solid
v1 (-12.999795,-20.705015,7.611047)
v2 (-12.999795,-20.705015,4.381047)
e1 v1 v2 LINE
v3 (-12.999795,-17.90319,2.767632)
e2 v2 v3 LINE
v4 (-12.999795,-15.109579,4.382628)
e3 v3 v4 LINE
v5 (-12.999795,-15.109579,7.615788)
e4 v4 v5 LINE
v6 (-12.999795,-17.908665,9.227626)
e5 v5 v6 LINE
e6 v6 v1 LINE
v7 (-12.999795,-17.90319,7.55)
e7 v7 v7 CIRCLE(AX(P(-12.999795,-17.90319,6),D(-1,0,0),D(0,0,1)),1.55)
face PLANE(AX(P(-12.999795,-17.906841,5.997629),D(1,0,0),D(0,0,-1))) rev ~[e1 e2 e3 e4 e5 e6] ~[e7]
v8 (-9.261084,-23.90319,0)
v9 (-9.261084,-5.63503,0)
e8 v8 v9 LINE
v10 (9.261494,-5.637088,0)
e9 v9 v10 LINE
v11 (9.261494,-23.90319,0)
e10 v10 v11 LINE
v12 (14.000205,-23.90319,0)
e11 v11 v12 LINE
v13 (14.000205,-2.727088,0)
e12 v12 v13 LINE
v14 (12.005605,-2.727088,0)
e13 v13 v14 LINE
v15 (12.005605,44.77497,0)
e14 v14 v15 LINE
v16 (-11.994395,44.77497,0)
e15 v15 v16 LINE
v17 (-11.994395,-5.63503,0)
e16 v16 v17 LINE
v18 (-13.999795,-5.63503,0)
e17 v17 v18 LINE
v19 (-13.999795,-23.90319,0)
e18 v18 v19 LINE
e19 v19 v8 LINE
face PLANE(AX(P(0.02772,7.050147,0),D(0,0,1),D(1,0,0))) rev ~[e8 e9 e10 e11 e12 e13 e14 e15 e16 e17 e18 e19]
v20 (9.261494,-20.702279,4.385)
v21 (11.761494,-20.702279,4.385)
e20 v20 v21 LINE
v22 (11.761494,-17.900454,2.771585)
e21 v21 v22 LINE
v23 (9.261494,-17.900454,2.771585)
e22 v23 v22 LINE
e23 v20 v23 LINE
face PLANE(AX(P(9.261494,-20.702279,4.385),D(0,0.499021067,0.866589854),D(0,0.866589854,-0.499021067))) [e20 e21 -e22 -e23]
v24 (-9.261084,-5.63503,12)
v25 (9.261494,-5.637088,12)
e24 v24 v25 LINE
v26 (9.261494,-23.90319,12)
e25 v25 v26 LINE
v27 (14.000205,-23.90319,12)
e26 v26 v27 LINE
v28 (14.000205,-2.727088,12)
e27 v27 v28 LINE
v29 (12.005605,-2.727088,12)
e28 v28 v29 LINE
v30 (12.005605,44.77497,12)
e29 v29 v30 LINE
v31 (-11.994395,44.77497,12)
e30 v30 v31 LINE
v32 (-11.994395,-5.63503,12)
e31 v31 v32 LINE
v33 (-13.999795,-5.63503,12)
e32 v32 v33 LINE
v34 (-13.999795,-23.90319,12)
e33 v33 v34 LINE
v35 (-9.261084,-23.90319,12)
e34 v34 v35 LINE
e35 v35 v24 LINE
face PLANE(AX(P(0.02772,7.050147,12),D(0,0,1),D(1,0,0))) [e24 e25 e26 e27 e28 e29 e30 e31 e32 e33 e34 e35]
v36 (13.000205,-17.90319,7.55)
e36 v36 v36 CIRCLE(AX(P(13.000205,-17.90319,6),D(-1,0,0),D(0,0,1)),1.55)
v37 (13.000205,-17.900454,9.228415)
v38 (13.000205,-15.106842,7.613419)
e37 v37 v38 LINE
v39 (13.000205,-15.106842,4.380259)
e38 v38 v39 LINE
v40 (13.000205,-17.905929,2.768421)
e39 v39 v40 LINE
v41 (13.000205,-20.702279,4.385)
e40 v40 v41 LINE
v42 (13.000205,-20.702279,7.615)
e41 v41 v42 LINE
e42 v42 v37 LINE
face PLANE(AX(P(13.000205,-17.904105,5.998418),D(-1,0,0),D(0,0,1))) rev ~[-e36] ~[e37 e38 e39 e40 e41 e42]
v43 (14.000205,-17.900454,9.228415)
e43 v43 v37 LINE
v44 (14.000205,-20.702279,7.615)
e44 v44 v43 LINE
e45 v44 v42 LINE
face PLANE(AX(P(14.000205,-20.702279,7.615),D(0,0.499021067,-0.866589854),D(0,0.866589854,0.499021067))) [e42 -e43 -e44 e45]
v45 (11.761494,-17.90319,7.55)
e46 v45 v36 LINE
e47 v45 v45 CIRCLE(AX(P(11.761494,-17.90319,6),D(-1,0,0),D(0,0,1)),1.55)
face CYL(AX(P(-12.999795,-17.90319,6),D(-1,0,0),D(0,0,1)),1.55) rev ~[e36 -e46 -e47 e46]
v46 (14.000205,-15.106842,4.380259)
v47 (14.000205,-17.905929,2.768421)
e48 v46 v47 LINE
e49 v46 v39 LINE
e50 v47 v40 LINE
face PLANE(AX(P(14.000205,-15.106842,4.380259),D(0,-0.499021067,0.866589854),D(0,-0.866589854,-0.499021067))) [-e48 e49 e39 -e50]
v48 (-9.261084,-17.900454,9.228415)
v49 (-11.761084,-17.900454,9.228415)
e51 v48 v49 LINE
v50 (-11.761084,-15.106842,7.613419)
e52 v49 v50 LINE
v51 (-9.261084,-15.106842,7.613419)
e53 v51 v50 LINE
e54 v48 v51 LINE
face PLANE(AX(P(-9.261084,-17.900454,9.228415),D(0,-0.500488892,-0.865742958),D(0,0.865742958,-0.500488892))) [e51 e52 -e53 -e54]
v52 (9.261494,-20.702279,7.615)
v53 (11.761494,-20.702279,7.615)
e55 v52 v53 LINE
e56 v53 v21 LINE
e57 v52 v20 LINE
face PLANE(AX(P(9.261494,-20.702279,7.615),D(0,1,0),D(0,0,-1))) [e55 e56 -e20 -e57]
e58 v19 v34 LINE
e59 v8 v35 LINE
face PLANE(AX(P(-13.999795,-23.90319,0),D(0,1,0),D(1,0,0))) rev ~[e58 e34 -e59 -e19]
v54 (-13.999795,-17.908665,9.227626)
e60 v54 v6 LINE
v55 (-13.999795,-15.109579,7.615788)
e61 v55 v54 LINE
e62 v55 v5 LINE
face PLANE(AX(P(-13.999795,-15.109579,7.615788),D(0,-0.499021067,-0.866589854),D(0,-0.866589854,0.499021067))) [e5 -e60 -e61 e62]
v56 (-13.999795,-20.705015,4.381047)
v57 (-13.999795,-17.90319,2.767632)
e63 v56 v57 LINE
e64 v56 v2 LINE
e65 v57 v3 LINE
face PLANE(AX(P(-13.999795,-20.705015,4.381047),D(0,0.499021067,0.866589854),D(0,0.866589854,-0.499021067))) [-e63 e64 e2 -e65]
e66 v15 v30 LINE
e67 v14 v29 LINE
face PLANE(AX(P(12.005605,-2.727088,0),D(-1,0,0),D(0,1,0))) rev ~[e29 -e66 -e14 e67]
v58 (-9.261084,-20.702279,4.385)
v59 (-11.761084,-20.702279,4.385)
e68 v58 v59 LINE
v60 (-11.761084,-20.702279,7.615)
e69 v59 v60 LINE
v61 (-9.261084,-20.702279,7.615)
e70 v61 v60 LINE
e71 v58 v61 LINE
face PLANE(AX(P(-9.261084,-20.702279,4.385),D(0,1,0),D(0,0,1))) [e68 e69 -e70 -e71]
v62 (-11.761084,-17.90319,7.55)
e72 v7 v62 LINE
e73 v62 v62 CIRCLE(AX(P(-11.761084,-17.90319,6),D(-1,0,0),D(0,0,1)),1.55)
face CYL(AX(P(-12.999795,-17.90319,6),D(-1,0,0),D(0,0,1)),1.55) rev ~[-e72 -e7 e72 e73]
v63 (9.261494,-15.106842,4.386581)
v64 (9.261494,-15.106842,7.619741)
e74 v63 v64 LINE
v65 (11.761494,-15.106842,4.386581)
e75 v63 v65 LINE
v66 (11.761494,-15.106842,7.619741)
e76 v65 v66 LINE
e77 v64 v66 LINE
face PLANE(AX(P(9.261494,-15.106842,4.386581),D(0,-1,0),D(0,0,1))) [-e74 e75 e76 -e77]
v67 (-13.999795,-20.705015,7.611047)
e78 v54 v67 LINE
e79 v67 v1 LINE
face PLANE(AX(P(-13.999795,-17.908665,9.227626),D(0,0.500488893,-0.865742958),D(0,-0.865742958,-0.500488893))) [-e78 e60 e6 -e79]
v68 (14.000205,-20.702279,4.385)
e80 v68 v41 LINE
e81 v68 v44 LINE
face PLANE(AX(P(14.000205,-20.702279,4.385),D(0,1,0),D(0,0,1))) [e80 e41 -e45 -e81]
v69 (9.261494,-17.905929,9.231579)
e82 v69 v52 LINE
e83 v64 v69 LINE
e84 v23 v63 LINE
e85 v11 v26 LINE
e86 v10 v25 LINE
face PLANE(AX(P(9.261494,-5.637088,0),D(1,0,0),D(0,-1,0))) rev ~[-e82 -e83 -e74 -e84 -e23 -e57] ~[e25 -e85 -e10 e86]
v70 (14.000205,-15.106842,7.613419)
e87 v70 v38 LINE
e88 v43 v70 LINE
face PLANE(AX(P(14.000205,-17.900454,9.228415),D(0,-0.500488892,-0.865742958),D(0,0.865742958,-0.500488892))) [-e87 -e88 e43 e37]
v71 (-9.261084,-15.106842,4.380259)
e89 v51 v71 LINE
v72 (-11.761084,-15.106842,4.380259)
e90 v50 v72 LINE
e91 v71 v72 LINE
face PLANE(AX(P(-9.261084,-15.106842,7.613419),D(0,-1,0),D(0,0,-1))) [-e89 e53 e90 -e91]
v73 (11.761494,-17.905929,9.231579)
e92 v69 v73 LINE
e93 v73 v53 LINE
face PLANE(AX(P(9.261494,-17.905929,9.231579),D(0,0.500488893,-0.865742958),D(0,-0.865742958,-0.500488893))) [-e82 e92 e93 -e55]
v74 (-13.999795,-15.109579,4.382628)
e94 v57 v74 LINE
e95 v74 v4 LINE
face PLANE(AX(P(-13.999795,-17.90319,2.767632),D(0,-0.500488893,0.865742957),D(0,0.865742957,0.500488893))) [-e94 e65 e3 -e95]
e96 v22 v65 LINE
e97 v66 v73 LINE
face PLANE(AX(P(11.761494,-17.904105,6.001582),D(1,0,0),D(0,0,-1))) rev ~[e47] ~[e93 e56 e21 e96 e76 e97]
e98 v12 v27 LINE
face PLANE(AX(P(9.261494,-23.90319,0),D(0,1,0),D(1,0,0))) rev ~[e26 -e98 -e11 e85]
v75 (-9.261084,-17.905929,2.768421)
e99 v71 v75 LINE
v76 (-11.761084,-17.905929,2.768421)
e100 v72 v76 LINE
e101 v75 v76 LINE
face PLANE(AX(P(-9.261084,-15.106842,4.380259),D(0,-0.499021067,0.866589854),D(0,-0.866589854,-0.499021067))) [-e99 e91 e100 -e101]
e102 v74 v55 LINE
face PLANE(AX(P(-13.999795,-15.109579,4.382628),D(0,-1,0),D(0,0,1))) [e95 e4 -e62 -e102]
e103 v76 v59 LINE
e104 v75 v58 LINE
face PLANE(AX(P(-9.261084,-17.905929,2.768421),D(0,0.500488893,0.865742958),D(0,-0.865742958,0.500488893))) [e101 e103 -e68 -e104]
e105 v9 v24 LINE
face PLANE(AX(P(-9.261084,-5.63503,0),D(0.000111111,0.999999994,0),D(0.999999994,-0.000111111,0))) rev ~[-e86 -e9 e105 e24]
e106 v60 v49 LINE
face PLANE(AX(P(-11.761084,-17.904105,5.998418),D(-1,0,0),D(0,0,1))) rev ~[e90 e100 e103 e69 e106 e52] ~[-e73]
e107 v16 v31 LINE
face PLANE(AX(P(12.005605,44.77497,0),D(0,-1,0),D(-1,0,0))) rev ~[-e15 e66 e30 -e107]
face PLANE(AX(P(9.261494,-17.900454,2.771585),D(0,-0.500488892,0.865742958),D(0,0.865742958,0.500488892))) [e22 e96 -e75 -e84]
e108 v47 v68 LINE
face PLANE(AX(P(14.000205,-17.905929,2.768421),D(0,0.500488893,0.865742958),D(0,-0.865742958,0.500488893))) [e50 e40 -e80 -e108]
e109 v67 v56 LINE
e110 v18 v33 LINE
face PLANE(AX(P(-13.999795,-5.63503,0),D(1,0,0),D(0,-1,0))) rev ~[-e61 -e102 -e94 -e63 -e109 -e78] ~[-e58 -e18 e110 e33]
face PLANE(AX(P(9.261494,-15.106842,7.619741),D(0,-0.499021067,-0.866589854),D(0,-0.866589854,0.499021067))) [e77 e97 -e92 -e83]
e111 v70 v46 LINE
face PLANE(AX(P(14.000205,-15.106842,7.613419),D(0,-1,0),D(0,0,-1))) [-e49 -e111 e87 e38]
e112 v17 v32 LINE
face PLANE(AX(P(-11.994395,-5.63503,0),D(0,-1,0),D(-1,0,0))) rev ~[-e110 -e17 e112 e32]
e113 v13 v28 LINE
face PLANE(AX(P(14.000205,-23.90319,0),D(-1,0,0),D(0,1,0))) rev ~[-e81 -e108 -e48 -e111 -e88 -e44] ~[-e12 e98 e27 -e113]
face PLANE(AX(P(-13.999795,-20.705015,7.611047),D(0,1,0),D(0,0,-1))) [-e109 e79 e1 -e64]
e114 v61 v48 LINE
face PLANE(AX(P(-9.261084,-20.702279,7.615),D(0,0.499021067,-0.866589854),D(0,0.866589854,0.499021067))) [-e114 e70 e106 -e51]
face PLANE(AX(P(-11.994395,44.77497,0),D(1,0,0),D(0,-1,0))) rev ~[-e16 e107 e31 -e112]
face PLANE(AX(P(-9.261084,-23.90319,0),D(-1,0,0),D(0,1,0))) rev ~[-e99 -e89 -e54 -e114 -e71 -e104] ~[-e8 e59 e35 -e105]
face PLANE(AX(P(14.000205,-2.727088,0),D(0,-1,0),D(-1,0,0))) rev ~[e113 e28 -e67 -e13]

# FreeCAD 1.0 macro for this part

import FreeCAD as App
import Part
import Sketcher

V = App.Vector
Q = App.Units.Quantity

doc = App.newDocument("Part")
params = doc.addObject("Spreadsheet::Sheet", "Params")
for row, (alias, value) in enumerate([
    ("sketch1_width", "24 mm"),
    ("sketch1_height", "50.41 mm"),
    ("pad1_length", "12 mm"),
    ("sketch2_height", "3.23 mm"),
    ("sketch2_length", "3.23 mm"),
    ("pocket1_length", "1 mm"),
    ("sketch3_height", "3.23 mm"),
    ("sketch3_length", "3.23 mm"),
    ("pocket2_length", "1 mm"),
    ("sketch4_height", "3.23 mm"),
    ("sketch4_length", "3.23 mm"),
    ("pocket3_length", "2.5 mm"),
    ("sketch5_height", "3.23 mm"),
    ("sketch5_length", "3.23 mm"),
    ("pocket4_length", "2.5 mm"),
    ("sketch6_diameter", "3.1 mm"),
], start=1):
    params.set(f"A{row}", alias)
    params.set(f"B{row}", "=" + value)
    params.setAlias(f"B{row}", alias)

body = doc.addObject("PartDesign::Body", "Body")

sketch1 = body.newObject("Sketcher::SketchObject", "Sketch")
sketch1.AttachmentSupport = (doc.getObject("XY_Plane"), [""])
sketch1.MapMode = "FlatFace"
sketch1.addGeometry([
    Part.LineSegment(V(-12, 44.8, 0), V(-12, -5.6, 0)),
    Part.LineSegment(V(-12, -5.6, 0), V(-14, -5.6, 0)),
    Part.LineSegment(V(-14, -5.6, 0), V(-14, -23.9, 0)),
    Part.LineSegment(V(-14, -23.9, 0), V(-9.3, -23.9, 0)),
    Part.LineSegment(V(-9.3, -23.9, 0), V(-9.3, -5.6, 0)),
    Part.LineSegment(V(-9.3, -5.6, 0), V(9.3, -5.6, 0)),
    Part.LineSegment(V(9.3, -5.6, 0), V(9.3, -23.9, 0)),
    Part.LineSegment(V(9.3, -23.9, 0), V(14, -23.9, 0)),
    Part.LineSegment(V(14, -23.9, 0), V(14, -2.7, 0)),
    Part.LineSegment(V(14, -2.7, 0), V(12, -2.7, 0)),
    Part.LineSegment(V(12, -2.7, 0), V(12, 44.8, 0)),
    Part.LineSegment(V(12, 44.8, 0), V(-12, 44.8, 0)),
], False)
sketch1.addConstraint([
    Sketcher.Constraint("Coincident", 0, 2, 1, 1),
    Sketcher.Constraint("Coincident", 1, 2, 2, 1),
    Sketcher.Constraint("Coincident", 2, 2, 3, 1),
    Sketcher.Constraint("Coincident", 3, 2, 4, 1),
    Sketcher.Constraint("Coincident", 4, 2, 5, 1),
    Sketcher.Constraint("Coincident", 5, 2, 6, 1),
    Sketcher.Constraint("Coincident", 6, 2, 7, 1),
    Sketcher.Constraint("Coincident", 7, 2, 8, 1),
    Sketcher.Constraint("Coincident", 8, 2, 9, 1),
    Sketcher.Constraint("Coincident", 9, 2, 10, 1),
    Sketcher.Constraint("Coincident", 10, 2, 11, 1),
    Sketcher.Constraint("Coincident", 11, 2, 0, 1),
    Sketcher.Constraint("Vertical", 0),
    Sketcher.Constraint("Horizontal", 1),
    Sketcher.Constraint("Vertical", 2),
    Sketcher.Constraint("Horizontal", 3),
    Sketcher.Constraint("Vertical", 4),
    Sketcher.Constraint("Vertical", 6),
    Sketcher.Constraint("Horizontal", 7),
    Sketcher.Constraint("Vertical", 8),
    Sketcher.Constraint("Horizontal", 9),
    Sketcher.Constraint("Vertical", 10),
    Sketcher.Constraint("Horizontal", 11),
    Sketcher.Constraint("Horizontal", 1, 2, 4, 2),
    Sketcher.Constraint("Horizontal", 3, 2, 6, 2),
    Sketcher.Constraint("Equal", 3, 7),
    Sketcher.Constraint("DistanceX", 11, 2, 11, 1, Q("24 mm")),
    Sketcher.Constraint("DistanceX", 2, 2, 7, 2, Q("28 mm")),
    Sketcher.Constraint("DistanceY", 0, 2, 0, 1, Q("50.41 mm")),
    Sketcher.Constraint("DistanceY", 5, 2, 8, 2, Q("2.91 mm")),
    Sketcher.Constraint("DistanceX", 1, 2, 1, 1, Q("2.0054 mm")),
    Sketcher.Constraint("DistanceY", 6, 2, 6, 1, Q("18.266102 mm")),
    Sketcher.Constraint("DistanceX", 3, 1, 3, 2, Q("4.738711 mm")),
    Sketcher.Constraint("DistanceY", 2, 2, 2, 1, Q("18.26816 mm")),
    Sketcher.Constraint("DistanceY", 0, 2, -1, 1, Q("5.63503 mm")),
    Sketcher.Constraint("DistanceX", 0, 2, -1, 1, Q("11.994395 mm")),
])
sketch1.setExpression("Constraints[26]", "Params.sketch1_width")
sketch1.setExpression("Constraints[28]", "Params.sketch1_height")
pad1 = body.newObject("PartDesign::Pad", "Pad")
pad1.Profile = sketch1
pad1.setExpression("Length", "Params.pad1_length")

sketch2 = body.newObject("Sketcher::SketchObject", "Sketch001")
sketch2.AttachmentSupport = (doc.getObject("YZ_Plane"), [""])
sketch2.MapMode = "FlatFace"
sketch2.AttachmentOffset = App.Placement(V(0, 0, 14.000205), App.Rotation())
sketch2.addGeometry([
    Part.LineSegment(V(-20.7, 7.6, 0), V(-20.7, 4.4, 0)),
    Part.LineSegment(V(-20.7, 4.4, 0), V(-17.9, 2.8, 0)),
    Part.LineSegment(V(-17.9, 2.8, 0), V(-15.1, 4.4, 0)),
    Part.LineSegment(V(-15.1, 4.4, 0), V(-15.1, 7.6, 0)),
    Part.LineSegment(V(-15.1, 7.6, 0), V(-17.9, 9.2, 0)),
    Part.LineSegment(V(-17.9, 9.2, 0), V(-20.7, 7.6, 0)),
], False)
sketch2.addConstraint([
    Sketcher.Constraint("Coincident", 0, 2, 1, 1),
    Sketcher.Constraint("Coincident", 1, 2, 2, 1),
    Sketcher.Constraint("Coincident", 2, 2, 3, 1),
    Sketcher.Constraint("Coincident", 3, 2, 4, 1),
    Sketcher.Constraint("Coincident", 4, 2, 5, 1),
    Sketcher.Constraint("Coincident", 5, 2, 0, 1),
    Sketcher.Constraint("Vertical", 0),
    Sketcher.Constraint("Vertical", 3),
    Sketcher.Constraint("Parallel", 1, 4),
    Sketcher.Constraint("Parallel", 2, 5),
    Sketcher.Constraint("Equal", 1, 2),
    Sketcher.Constraint("DistanceY", 0, 2, 0, 1, Q("3.23 mm")),
    Sketcher.Constraint("Distance", 1, Q("3.23 mm")),
    Sketcher.Constraint("DistanceY", -1, 1, 0, 2, Q("4.385 mm")),
    Sketcher.Constraint("DistanceY", 1, 2, 3, 2, Q("4.844998 mm")),
    Sketcher.Constraint("DistanceY", 3, 1, 3, 2, Q("3.23316 mm")),
    Sketcher.Constraint("DistanceX", 0, 2, -1, 1, Q("20.702279 mm")),
    Sketcher.Constraint("DistanceX", 1, 2, -1, 1, Q("17.905929 mm")),
])
sketch2.setExpression("Constraints[11]", "Params.sketch2_height")
sketch2.setExpression("Constraints[12]", "Params.sketch2_length")
pocket1 = body.newObject("PartDesign::Pocket", "Pocket")
pocket1.Profile = sketch2
pocket1.setExpression("Length", "Params.pocket1_length")

sketch3 = body.newObject("Sketcher::SketchObject", "Sketch002")
sketch3.AttachmentSupport = (doc.getObject("YZ_Plane"), [""])
sketch3.MapMode = "FlatFace"
sketch3.AttachmentOffset = App.Placement(V(0, 0, -13.999795), App.Rotation())
sketch3.addGeometry([
    Part.LineSegment(V(-20.7, 4.4, 0), V(-20.7, 7.6, 0)),
    Part.LineSegment(V(-20.7, 7.6, 0), V(-17.9, 9.2, 0)),
    Part.LineSegment(V(-17.9, 9.2, 0), V(-15.1, 7.6, 0)),
    Part.LineSegment(V(-15.1, 7.6, 0), V(-15.1, 4.4, 0)),
    Part.LineSegment(V(-15.1, 4.4, 0), V(-17.9, 2.8, 0)),
    Part.LineSegment(V(-17.9, 2.8, 0), V(-20.7, 4.4, 0)),
], False)
sketch3.addConstraint([
    Sketcher.Constraint("Coincident", 0, 2, 1, 1),
    Sketcher.Constraint("Coincident", 1, 2, 2, 1),
    Sketcher.Constraint("Coincident", 2, 2, 3, 1),
    Sketcher.Constraint("Coincident", 3, 2, 4, 1),
    Sketcher.Constraint("Coincident", 4, 2, 5, 1),
    Sketcher.Constraint("Coincident", 5, 2, 0, 1),
    Sketcher.Constraint("Vertical", 0),
    Sketcher.Constraint("Vertical", 3),
    Sketcher.Constraint("Parallel", 1, 4),
    Sketcher.Constraint("Parallel", 2, 5),
    Sketcher.Constraint("Equal", 1, 2),
    Sketcher.Constraint("DistanceY", 0, 1, 0, 2, Q("3.23 mm")),
    Sketcher.Constraint("Distance", 1, Q("3.23 mm")),
    Sketcher.Constraint("DistanceY", 3, 2, 1, 2, Q("4.844998 mm")),
    Sketcher.Constraint("DistanceY", 3, 2, 3, 1, Q("3.23316 mm")),
    Sketcher.Constraint("DistanceX", 2, 2, -1, 1, Q("15.109579 mm")),
    Sketcher.Constraint("DistanceX", 4, 2, -1, 1, Q("17.90319 mm")),
    Sketcher.Constraint("DistanceY", -1, 1, 4, 2, Q("2.767632 mm")),
])
sketch3.setExpression("Constraints[11]", "Params.sketch3_height")
sketch3.setExpression("Constraints[12]", "Params.sketch3_length")
pocket2 = body.newObject("PartDesign::Pocket", "Pocket001")
pocket2.Profile = sketch3
pocket2.setExpression("Length", "Params.pocket2_length")
pocket2.Reversed = True

sketch4 = body.newObject("Sketcher::SketchObject", "Sketch003")
sketch4.AttachmentSupport = (doc.getObject("YZ_Plane"), [""])
sketch4.MapMode = "FlatFace"
sketch4.AttachmentOffset = App.Placement(V(0, 0, 9.261494), App.Rotation())
sketch4.addGeometry([
    Part.LineSegment(V(-20.7, 4.4, 0), V(-20.7, 7.6, 0)),
    Part.LineSegment(V(-20.7, 7.6, 0), V(-17.9, 9.2, 0)),
    Part.LineSegment(V(-17.9, 9.2, 0), V(-15.1, 7.6, 0)),
    Part.LineSegment(V(-15.1, 7.6, 0), V(-15.1, 4.4, 0)),
    Part.LineSegment(V(-15.1, 4.4, 0), V(-17.9, 2.8, 0)),
    Part.LineSegment(V(-17.9, 2.8, 0), V(-20.7, 4.4, 0)),
], False)
sketch4.addConstraint([
    Sketcher.Constraint("Coincident", 0, 2, 1, 1),
    Sketcher.Constraint("Coincident", 1, 2, 2, 1),
    Sketcher.Constraint("Coincident", 2, 2, 3, 1),
    Sketcher.Constraint("Coincident", 3, 2, 4, 1),
    Sketcher.Constraint("Coincident", 4, 2, 5, 1),
    Sketcher.Constraint("Coincident", 5, 2, 0, 1),
    Sketcher.Constraint("Vertical", 0),
    Sketcher.Constraint("Vertical", 3),
    Sketcher.Constraint("Parallel", 1, 4),
    Sketcher.Constraint("Parallel", 2, 5),
    Sketcher.Constraint("Equal", 1, 2),
    Sketcher.Constraint("DistanceY", 0, 1, 0, 2, Q("3.23 mm")),
    Sketcher.Constraint("Distance", 1, Q("3.23 mm")),
    Sketcher.Constraint("DistanceY", -1, 1, 0, 2, Q("7.615 mm")),
    Sketcher.Constraint("DistanceY", 3, 2, 1, 2, Q("4.844998 mm")),
    Sketcher.Constraint("DistanceY", 3, 2, 3, 1, Q("3.23316 mm")),
    Sketcher.Constraint("DistanceX", 0, 2, -1, 1, Q("20.702279 mm")),
    Sketcher.Constraint("DistanceX", 1, 2, -1, 1, Q("17.905929 mm")),
])
sketch4.setExpression("Constraints[11]", "Params.sketch4_height")
sketch4.setExpression("Constraints[12]", "Params.sketch4_length")
pocket3 = body.newObject("PartDesign::Pocket", "Pocket002")
pocket3.Profile = sketch4
pocket3.setExpression("Length", "Params.pocket3_length")
pocket3.Reversed = True

sketch5 = body.newObject("Sketcher::SketchObject", "Sketch004")
sketch5.AttachmentSupport = (doc.getObject("YZ_Plane"), [""])
sketch5.MapMode = "FlatFace"
sketch5.AttachmentOffset = App.Placement(V(0, 0, -9.261084), App.Rotation())
sketch5.addGeometry([
    Part.LineSegment(V(-20.7, 7.6, 0), V(-20.7, 4.4, 0)),
    Part.LineSegment(V(-20.7, 4.4, 0), V(-17.9, 2.8, 0)),
    Part.LineSegment(V(-17.9, 2.8, 0), V(-15.1, 4.4, 0)),
    Part.LineSegment(V(-15.1, 4.4, 0), V(-15.1, 7.6, 0)),
    Part.LineSegment(V(-15.1, 7.6, 0), V(-17.9, 9.2, 0)),
    Part.LineSegment(V(-17.9, 9.2, 0), V(-20.7, 7.6, 0)),
], False)
sketch5.addConstraint([
    Sketcher.Constraint("Coincident", 0, 2, 1, 1),
    Sketcher.Constraint("Coincident", 1, 2, 2, 1),
    Sketcher.Constraint("Coincident", 2, 2, 3, 1),
    Sketcher.Constraint("Coincident", 3, 2, 4, 1),
    Sketcher.Constraint("Coincident", 4, 2, 5, 1),
    Sketcher.Constraint("Coincident", 5, 2, 0, 1),
    Sketcher.Constraint("Vertical", 0),
    Sketcher.Constraint("Vertical", 3),
    Sketcher.Constraint("Parallel", 1, 4),
    Sketcher.Constraint("Parallel", 2, 5),
    Sketcher.Constraint("Equal", 1, 2),
    Sketcher.Constraint("DistanceY", 0, 2, 0, 1, Q("3.23 mm")),
    Sketcher.Constraint("Distance", 1, Q("3.23 mm")),
    Sketcher.Constraint("DistanceY", -1, 1, 0, 2, Q("4.385 mm")),
    Sketcher.Constraint("DistanceY", 1, 2, 3, 2, Q("4.844998 mm")),
    Sketcher.Constraint("DistanceY", 3, 1, 3, 2, Q("3.23316 mm")),
    Sketcher.Constraint("DistanceX", 0, 2, -1, 1, Q("20.702279 mm")),
    Sketcher.Constraint("DistanceX", 1, 2, -1, 1, Q("17.905929 mm")),
])
sketch5.setExpression("Constraints[11]", "Params.sketch5_height")
sketch5.setExpression("Constraints[12]", "Params.sketch5_length")
pocket4 = body.newObject("PartDesign::Pocket", "Pocket003")
pocket4.Profile = sketch5
pocket4.setExpression("Length", "Params.pocket4_length")

sketch6 = body.newObject("Sketcher::SketchObject", "Sketch005")
sketch6.AttachmentSupport = (doc.getObject("YZ_Plane"), [""])
sketch6.MapMode = "FlatFace"
sketch6.AttachmentOffset = App.Placement(V(0, 0, -12.999795), App.Rotation())
sketch6.addGeometry(Part.Circle(V(-17.9, 6, 0), V(0, 0, 1), 1.6), False)
sketch6.addConstraint([
    Sketcher.Constraint("Diameter", 0, Q("3.1 mm")),
    Sketcher.Constraint("DistanceY", -1, 1, 0, 3, Q("6 mm")),
    Sketcher.Constraint("DistanceX", 0, 3, -1, 1, Q("17.90319 mm")),
])
sketch6.setExpression("Constraints[0]", "Params.sketch6_diameter")
pocket5 = body.newObject("PartDesign::Pocket", "Pocket004")
pocket5.Profile = sketch6
pocket5.Type = "ThroughAll"
pocket5.Reversed = True

doc.recompute()
